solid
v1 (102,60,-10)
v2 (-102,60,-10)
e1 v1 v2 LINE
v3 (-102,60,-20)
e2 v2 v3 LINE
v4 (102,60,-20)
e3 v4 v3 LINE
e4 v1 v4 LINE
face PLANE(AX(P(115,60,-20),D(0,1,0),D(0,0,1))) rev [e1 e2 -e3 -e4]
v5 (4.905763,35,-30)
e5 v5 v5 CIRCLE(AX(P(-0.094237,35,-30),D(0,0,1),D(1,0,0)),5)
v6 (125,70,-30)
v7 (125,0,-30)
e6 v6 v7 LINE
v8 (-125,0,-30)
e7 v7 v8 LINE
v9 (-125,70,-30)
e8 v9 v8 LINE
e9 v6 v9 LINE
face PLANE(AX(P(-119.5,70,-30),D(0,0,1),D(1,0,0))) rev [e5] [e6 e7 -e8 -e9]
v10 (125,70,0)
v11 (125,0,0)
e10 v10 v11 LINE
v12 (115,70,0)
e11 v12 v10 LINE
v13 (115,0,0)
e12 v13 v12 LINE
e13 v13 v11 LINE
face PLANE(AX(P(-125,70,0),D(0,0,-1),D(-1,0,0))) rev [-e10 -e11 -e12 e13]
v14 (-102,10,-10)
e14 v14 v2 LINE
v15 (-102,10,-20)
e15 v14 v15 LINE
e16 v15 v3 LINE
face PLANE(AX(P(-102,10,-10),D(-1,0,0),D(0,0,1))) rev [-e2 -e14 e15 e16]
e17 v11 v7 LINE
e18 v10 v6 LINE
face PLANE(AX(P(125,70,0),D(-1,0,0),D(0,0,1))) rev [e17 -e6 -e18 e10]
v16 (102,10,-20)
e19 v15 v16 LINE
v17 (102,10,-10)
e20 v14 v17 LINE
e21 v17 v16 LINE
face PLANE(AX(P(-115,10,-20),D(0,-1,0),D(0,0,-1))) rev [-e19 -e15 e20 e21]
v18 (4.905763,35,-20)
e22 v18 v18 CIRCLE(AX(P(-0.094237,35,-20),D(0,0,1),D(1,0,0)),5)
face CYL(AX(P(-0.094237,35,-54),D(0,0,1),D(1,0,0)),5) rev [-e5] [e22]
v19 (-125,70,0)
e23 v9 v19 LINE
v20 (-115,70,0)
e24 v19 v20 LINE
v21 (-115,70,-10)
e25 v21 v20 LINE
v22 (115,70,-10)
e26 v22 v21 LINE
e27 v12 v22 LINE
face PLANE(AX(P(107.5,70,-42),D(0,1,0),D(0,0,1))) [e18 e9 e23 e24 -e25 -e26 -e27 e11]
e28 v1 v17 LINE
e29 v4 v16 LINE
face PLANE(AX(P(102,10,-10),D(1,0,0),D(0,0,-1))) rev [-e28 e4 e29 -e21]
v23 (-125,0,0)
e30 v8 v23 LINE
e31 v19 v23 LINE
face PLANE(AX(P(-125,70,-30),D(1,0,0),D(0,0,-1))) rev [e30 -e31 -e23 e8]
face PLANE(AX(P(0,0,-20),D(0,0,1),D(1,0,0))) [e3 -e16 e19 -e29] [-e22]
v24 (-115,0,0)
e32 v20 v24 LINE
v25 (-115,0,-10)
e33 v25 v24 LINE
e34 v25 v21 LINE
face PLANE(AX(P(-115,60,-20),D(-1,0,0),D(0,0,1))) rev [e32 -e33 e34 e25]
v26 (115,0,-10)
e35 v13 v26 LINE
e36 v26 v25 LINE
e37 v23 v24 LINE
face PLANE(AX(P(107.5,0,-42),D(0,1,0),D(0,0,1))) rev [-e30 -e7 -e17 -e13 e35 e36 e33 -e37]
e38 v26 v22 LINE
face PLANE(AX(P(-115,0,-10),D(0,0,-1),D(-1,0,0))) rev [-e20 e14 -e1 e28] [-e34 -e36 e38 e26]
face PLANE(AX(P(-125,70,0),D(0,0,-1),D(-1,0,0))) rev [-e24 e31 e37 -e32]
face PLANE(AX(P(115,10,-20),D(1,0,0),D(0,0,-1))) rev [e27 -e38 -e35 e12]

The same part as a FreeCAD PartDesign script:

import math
import FreeCAD as App
import Part
import Sketcher

V = App.Vector


def add_polygon(sketch, points):
    """Adds a closed chain of lines whose ends are joined by coincident constraints."""
    first, n = sketch.GeometryCount, len(points)
    for a, b in zip(points, points[1:] + points[:1]):
        sketch.addGeometry(Part.LineSegment(App.Vector(*a, 0), App.Vector(*b, 0)), False)
    for i in range(n):
        sketch.addConstraint(Sketcher.Constraint("Coincident", first + i, 2, first + (i + 1) % n, 1))

doc = App.newDocument("Part")
body = doc.addObject("PartDesign::Body", "Body")

sketch1 = body.newObject("Sketcher::SketchObject", "Sketch")
sketch1.AttachmentSupport = (doc.getObject("XZ_Plane"), [""])
sketch1.MapMode = "FlatFace"
sketch1.addGeometry(Part.LineSegment(V(-125, 0, 0), V(125, 0, 0)), False)
sketch1.addGeometry(Part.LineSegment(V(125, 0, 0), V(125, -30, 0)), False)
sketch1.addGeometry(Part.LineSegment(V(125, -30, 0), V(119.5, -30, 0)), False)
sketch1.addGeometry(Part.LineSegment(V(119.5, -30, 0), V(119.5, -42, 0)), False)
sketch1.addGeometry(Part.ArcOfCircle(Part.Circle(V(107.5, -42, 0), V(0, 0, 1), 12), math.radians(180), math.radians(360)), False)
sketch1.addGeometry(Part.LineSegment(V(95.5, -42, 0), V(95.5, -30, 0)), False)
sketch1.addGeometry(Part.LineSegment(V(95.5, -30, 0), V(-95.5, -30, 0)), False)
sketch1.addGeometry(Part.LineSegment(V(-95.5, -30, 0), V(-95.5, -42, 0)), False)
sketch1.addGeometry(Part.ArcOfCircle(Part.Circle(V(-107.5, -42, 0), V(0, 0, 1), 12), math.radians(180), math.radians(360)), False)
sketch1.addGeometry(Part.LineSegment(V(-119.5, -42, 0), V(-119.5, -30, 0)), False)
sketch1.addGeometry(Part.LineSegment(V(-119.5, -30, 0), V(-125, -30, 0)), False)
sketch1.addGeometry(Part.LineSegment(V(-125, -30, 0), V(-125, 0, 0)), False)
sketch1.addGeometry(Part.Circle(V(-107.5, -42, 0), V(0, 0, 1), 5), False)
sketch1.addGeometry(Part.Circle(V(107.5, -42, 0), V(0, 0, 1), 5), False)
sketch1.addConstraint(Sketcher.Constraint("Coincident", 0, 2, 1, 1))
sketch1.addConstraint(Sketcher.Constraint("Coincident", 1, 2, 2, 1))
sketch1.addConstraint(Sketcher.Constraint("Coincident", 2, 2, 3, 1))
sketch1.addConstraint(Sketcher.Constraint("Tangent", 3, 2, 4, 2))
sketch1.addConstraint(Sketcher.Constraint("Tangent", 4, 1, 5, 1))
sketch1.addConstraint(Sketcher.Constraint("Coincident", 5, 2, 6, 1))
sketch1.addConstraint(Sketcher.Constraint("Coincident", 6, 2, 7, 1))
sketch1.addConstraint(Sketcher.Constraint("Tangent", 7, 2, 8, 2))
sketch1.addConstraint(Sketcher.Constraint("Tangent", 8, 1, 9, 1))
sketch1.addConstraint(Sketcher.Constraint("Coincident", 9, 2, 10, 1))
sketch1.addConstraint(Sketcher.Constraint("Coincident", 10, 2, 11, 1))
sketch1.addConstraint(Sketcher.Constraint("Coincident", 11, 2, 0, 1))
sketch1.addConstraint(Sketcher.Constraint("Horizontal", 0))
sketch1.addConstraint(Sketcher.Constraint("Vertical", 1))
sketch1.addConstraint(Sketcher.Constraint("Horizontal", 2))
sketch1.addConstraint(Sketcher.Constraint("Vertical", 3))
sketch1.addConstraint(Sketcher.Constraint("Vertical", 5))
sketch1.addConstraint(Sketcher.Constraint("Horizontal", 6))
sketch1.addConstraint(Sketcher.Constraint("Vertical", 7))
sketch1.addConstraint(Sketcher.Constraint("Vertical", 9))
sketch1.addConstraint(Sketcher.Constraint("Horizontal", 10))
sketch1.addConstraint(Sketcher.Constraint("Vertical", 11))
sketch1.addConstraint(Sketcher.Constraint("Coincident", 12, 3, 8, 3))
sketch1.addConstraint(Sketcher.Constraint("Coincident", 13, 3, 4, 3))
sketch1.addConstraint(Sketcher.Constraint("Equal", 4, 8))
sketch1.addConstraint(Sketcher.Constraint("Equal", 12, 13))
sketch1.addConstraint(Sketcher.Constraint("Symmetric", 0, 2, 11, 2, -1, 1))
sketch1.addConstraint(Sketcher.Constraint("Symmetric", 4, 3, 8, 3, -2))
sketch1.addConstraint(Sketcher.Constraint("Horizontal", 2, 2, 5, 2))
sketch1.addConstraint(Sketcher.Constraint("Horizontal", 6, 2, 9, 2))
sketch1.addConstraint(Sketcher.Constraint("Diameter", 12, 10.0))
sketch1.addConstraint(Sketcher.Constraint("Radius", 4, 12.0))
sketch1.addConstraint(Sketcher.Constraint("DistanceX", 0, 1, 0, 2, 250.0))
sketch1.addConstraint(Sketcher.Constraint("DistanceX", 6, 2, 6, 1, 191.0))
sketch1.addConstraint(Sketcher.Constraint("DistanceY", 1, 2, 1, 1, 30.0))
sketch1.addConstraint(Sketcher.Constraint("DistanceY", 3, 2, 3, 1, 12.0))
pad1 = body.newObject("PartDesign::Pad", "Pad")
pad1.Profile = sketch1
pad1.Length = 70
pad1.Reversed = True

sketch2 = body.newObject("Sketcher::SketchObject", "Sketch001")
sketch2.AttachmentSupport = (doc.getObject("YZ_Plane"), [""])
sketch2.MapMode = "FlatFace"
sketch2.AttachmentOffset = App.Placement(V(0, 0, -125), App.Rotation())
add_polygon(sketch2, [(30, -80), (0, -80), (0, -30), (30, -30)])
sketch2.addConstraint(Sketcher.Constraint("Horizontal", 0))
sketch2.addConstraint(Sketcher.Constraint("Vertical", 1))
sketch2.addConstraint(Sketcher.Constraint("Horizontal", 2))
sketch2.addConstraint(Sketcher.Constraint("Vertical", 3))
sketch2.addConstraint(Sketcher.Constraint("PointOnObject", 0, 2, -2))
sketch2.addConstraint(Sketcher.Constraint("DistanceX", 0, 2, 0, 1, 30.0))
sketch2.addConstraint(Sketcher.Constraint("DistanceY", 1, 1, 1, 2, 50.0))
sketch2.addConstraint(Sketcher.Constraint("DistanceY", 0, 2, -1, 1, 80.0))
pocket1 = body.newObject("PartDesign::Pocket", "Pocket")
pocket1.Profile = sketch2
pocket1.Type = "ThroughAll"
pocket1.Reversed = True

sketch3 = body.newObject("Sketcher::SketchObject", "Sketch002")
sketch3.AttachmentSupport = (doc.getObject("XY_Plane"), [""])
sketch3.MapMode = "FlatFace"
add_polygon(sketch3, [(-115, 60), (-115, 10), (115, 10), (115, 60)])
sketch3.addConstraint(Sketcher.Constraint("Vertical", 0))
sketch3.addConstraint(Sketcher.Constraint("Horizontal", 1))
sketch3.addConstraint(Sketcher.Constraint("Vertical", 2))
sketch3.addConstraint(Sketcher.Constraint("Horizontal", 3))
sketch3.addConstraint(Sketcher.Constraint("DistanceX", 1, 1, 1, 2, 230.0))
sketch3.addConstraint(Sketcher.Constraint("DistanceY", 0, 2, 0, 1, 50.0))
sketch3.addConstraint(Sketcher.Constraint("DistanceX", 0, 2, -1, 1, 115.0))
sketch3.addConstraint(Sketcher.Constraint("DistanceY", -1, 1, 0, 2, 10.0))
pocket2 = body.newObject("PartDesign::Pocket", "Pocket001")
pocket2.Profile = sketch3
pocket2.Length = 20

sketch4 = body.newObject("Sketcher::SketchObject", "Sketch003")
sketch4.AttachmentSupport = (doc.getObject("XY_Plane"), [""])
sketch4.MapMode = "FlatFace"
sketch4.AttachmentOffset = App.Placement(V(0, 0, -20), App.Rotation())
sketch4.addGeometry(Part.Circle(V(-0.094237, 35, 0), V(0, 0, 1), 5), False)
sketch4.addConstraint(Sketcher.Constraint("Diameter", 0, 10.0))
sketch4.addConstraint(Sketcher.Constraint("DistanceY", -1, 1, 0, 3, 35.0))
sketch4.addConstraint(Sketcher.Constraint("DistanceX", 0, 3, -1, 1, 0.094237))
pocket3 = body.newObject("PartDesign::Pocket", "Pocket002")
pocket3.Profile = sketch4
pocket3.Type = "ThroughAll"

sketch5 = body.newObject("Sketcher::SketchObject", "Sketch004")
sketch5.AttachmentSupport = (doc.getObject("YZ_Plane"), [""])
sketch5.MapMode = "FlatFace"
sketch5.AttachmentOffset = App.Placement(V(0, 0, 125), App.Rotation())
add_polygon(sketch5, [(70, -30), (0, -30), (0, -64.830665), (70, -64.830665)])
sketch5.addConstraint(Sketcher.Constraint("Horizontal", 0))
sketch5.addConstraint(Sketcher.Constraint("Vertical", 1))
sketch5.addConstraint(Sketcher.Constraint("Horizontal", 2))
sketch5.addConstraint(Sketcher.Constraint("Vertical", 3))
sketch5.addConstraint(Sketcher.Constraint("PointOnObject", 0, 2, -2))
sketch5.addConstraint(Sketcher.Constraint("DistanceX", 0, 2, 0, 1, 70.0))
sketch5.addConstraint(Sketcher.Constraint("DistanceY", 0, 2, -1, 1, 30.0))
sketch5.addConstraint(Sketcher.Constraint("DistanceY", 1, 2, 1, 1, 34.830665))
pocket4 = body.newObject("PartDesign::Pocket", "Pocket003")
pocket4.Profile = sketch5
pocket4.Type = "ThroughAll"

sketch6 = body.newObject("Sketcher::SketchObject", "Sketch005")
sketch6.AttachmentSupport = (doc.getObject("XZ_Plane"), [""])
sketch6.MapMode = "FlatFace"
sketch6.AttachmentOffset = App.Placement(V(0, 0, -70), App.Rotation())
add_polygon(sketch6, [(-115, -10), (-115, 0), (115, 0), (115, -10)])
sketch6.addConstraint(Sketcher.Constraint("Vertical", 0))
sketch6.addConstraint(Sketcher.Constraint("Horizontal", 1))
sketch6.addConstraint(Sketcher.Constraint("Vertical", 2))
sketch6.addConstraint(Sketcher.Constraint("Horizontal", 3))
sketch6.addConstraint(Sketcher.Constraint("Symmetric", 0, 2, 1, 2, -1, 1))
sketch6.addConstraint(Sketcher.Constraint("DistanceX", 1, 1, 1, 2, 230.0))
sketch6.addConstraint(Sketcher.Constraint("DistanceY", 0, 1, 0, 2, 10.0))
pocket5 = body.newObject("PartDesign::Pocket", "Pocket004")
pocket5.Profile = sketch6
pocket5.Type = "ThroughAll"
pocket5.Reversed = True

sketch7 = body.newObject("Sketcher::SketchObject", "Sketch006")
sketch7.AttachmentSupport = (doc.getObject("XY_Plane"), [""])
sketch7.MapMode = "FlatFace"
sketch7.AttachmentOffset = App.Placement(V(0, 0, -20), App.Rotation())
add_polygon(sketch7, [(-115, 60), (-115, 10), (-102, 10), (-102, 60)])
add_polygon(sketch7, [(102, 60), (102, 10), (115, 10), (115, 60)])
sketch7.addConstraint(Sketcher.Constraint("Vertical", 0))
sketch7.addConstraint(Sketcher.Constraint("Horizontal", 1))
sketch7.addConstraint(Sketcher.Constraint("Vertical", 2))
sketch7.addConstraint(Sketcher.Constraint("Horizontal", 3))
sketch7.addConstraint(Sketcher.Constraint("Vertical", 4))
sketch7.addConstraint(Sketcher.Constraint("Horizontal", 5))
sketch7.addConstraint(Sketcher.Constraint("Vertical", 6))
sketch7.addConstraint(Sketcher.Constraint("Horizontal", 7))
sketch7.addConstraint(Sketcher.Constraint("Symmetric", 1, 2, 4, 2, -2))
sketch7.addConstraint(Sketcher.Constraint("Symmetric", 3, 2, 6, 2, -2))
sketch7.addConstraint(Sketcher.Constraint("DistanceX", 1, 1, 1, 2, 13.0))
sketch7.addConstraint(Sketcher.Constraint("DistanceY", 0, 2, 0, 1, 50.0))
sketch7.addConstraint(Sketcher.Constraint("DistanceX", 0, 2, -1, 1, 115.0))
sketch7.addConstraint(Sketcher.Constraint("DistanceY", -1, 1, 0, 2, 10.0))
pad2 = body.newObject("PartDesign::Pad", "Pad001")
pad2.Profile = sketch7
pad2.Length = 10

doc.recompute()
